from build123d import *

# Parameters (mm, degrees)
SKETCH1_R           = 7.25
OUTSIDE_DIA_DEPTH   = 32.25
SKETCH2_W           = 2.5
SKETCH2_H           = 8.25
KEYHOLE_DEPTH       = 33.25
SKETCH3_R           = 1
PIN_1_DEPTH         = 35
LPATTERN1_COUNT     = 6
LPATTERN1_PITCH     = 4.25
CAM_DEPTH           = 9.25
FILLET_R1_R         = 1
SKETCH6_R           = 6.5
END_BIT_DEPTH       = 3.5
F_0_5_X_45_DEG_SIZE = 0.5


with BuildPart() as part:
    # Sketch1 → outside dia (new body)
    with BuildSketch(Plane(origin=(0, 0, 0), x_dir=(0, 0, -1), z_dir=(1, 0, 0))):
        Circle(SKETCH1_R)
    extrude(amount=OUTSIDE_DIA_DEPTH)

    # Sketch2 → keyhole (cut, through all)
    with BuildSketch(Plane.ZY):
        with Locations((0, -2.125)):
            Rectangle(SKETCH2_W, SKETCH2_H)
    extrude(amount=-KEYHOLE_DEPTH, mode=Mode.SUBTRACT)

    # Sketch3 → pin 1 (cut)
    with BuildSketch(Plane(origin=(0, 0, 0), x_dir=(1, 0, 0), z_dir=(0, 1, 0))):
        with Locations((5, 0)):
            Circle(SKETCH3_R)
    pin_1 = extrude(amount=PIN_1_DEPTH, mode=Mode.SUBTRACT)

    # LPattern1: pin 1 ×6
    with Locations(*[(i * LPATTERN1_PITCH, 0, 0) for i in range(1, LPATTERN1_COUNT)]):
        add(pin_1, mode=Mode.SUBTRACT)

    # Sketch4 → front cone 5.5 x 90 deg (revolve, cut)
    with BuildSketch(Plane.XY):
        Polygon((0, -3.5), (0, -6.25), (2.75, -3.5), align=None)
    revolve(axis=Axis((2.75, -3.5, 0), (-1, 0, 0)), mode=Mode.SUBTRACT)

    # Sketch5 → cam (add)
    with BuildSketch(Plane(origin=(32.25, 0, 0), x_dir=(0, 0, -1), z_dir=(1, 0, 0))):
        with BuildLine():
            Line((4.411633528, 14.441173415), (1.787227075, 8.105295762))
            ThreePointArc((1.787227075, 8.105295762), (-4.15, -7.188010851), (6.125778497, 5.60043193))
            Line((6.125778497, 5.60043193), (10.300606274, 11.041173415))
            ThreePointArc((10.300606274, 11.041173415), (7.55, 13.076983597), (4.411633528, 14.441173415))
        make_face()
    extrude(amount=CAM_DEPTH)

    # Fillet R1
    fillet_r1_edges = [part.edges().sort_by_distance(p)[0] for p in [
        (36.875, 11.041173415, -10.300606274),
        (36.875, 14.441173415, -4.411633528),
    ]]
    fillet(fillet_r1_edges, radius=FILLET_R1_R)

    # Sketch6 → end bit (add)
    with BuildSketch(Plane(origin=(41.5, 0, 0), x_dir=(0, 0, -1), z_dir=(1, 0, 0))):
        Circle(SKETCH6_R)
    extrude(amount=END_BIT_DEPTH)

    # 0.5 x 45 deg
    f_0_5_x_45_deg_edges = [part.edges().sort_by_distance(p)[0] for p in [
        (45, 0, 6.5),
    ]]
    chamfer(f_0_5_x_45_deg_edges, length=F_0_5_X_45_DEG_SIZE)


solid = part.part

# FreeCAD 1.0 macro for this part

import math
import FreeCAD as App
import Part
import Sketcher
from FreeCAD import Vector
Q = App.Units.Quantity


def edges_at(feature, points):
    """Names of the edges that pass closest to the given points."""
    edges = feature.Shape.Edges
    near = lambda p: min(range(len(edges)), key=lambda i: edges[i].distToShape(Part.Vertex(*p))[0])
    return sorted({f"Edge{near(p) + 1}" for p in points})


def add_polygon(sketch, points):
    """Adds a closed chain of lines whose ends are joined by coincident constraints."""
    first, n = sketch.GeometryCount, len(points)
    for a, b in zip(points, points[1:] + points[:1]):
        sketch.addGeometry(Part.LineSegment(App.Vector(*a, 0), App.Vector(*b, 0)), False)
    for i in range(n):
        sketch.addConstraint(Sketcher.Constraint("Coincident", first + i, 2, first + (i + 1) % n, 1))

doc = App.newDocument("Part")
body = doc.addObject("PartDesign::Body", "Body")

sketch1 = doc.addObject("Sketcher::SketchObject", "Sketch")
body.addObject(sketch1)
sketch1.AttachmentSupport = (doc.YZ_Plane, [""])
sketch1.MapMode = "FlatFace"
sketch1.addGeometry(Part.Circle(Vector(0, 0, 0), Vector(0, 0, 1), 7.25), False)
sketch1.addConstraint(Sketcher.Constraint("Coincident", 0, 3, -1, 1))
sketch1.addConstraint(Sketcher.Constraint("Diameter", 0, Q("14.5 mm")))
pad1 = doc.addObject("PartDesign::Pad", "Pad")
body.addObject(pad1)
pad1.Profile = sketch1
pad1.Length = 32.25

sketch2 = doc.addObject("Sketcher::SketchObject", "Sketch001")
body.addObject(sketch2)
sketch2.AttachmentSupport = (doc.YZ_Plane, [""])
sketch2.MapMode = "FlatFace"
add_polygon(sketch2, [(2, -1.25), (-6.25, -1.25), (-6.25, 1.25), (2, 1.25)])
sketch2.addConstraint(Sketcher.Constraint("Horizontal", 0))
sketch2.addConstraint(Sketcher.Constraint("Vertical", 1))
sketch2.addConstraint(Sketcher.Constraint("Horizontal", 2))
sketch2.addConstraint(Sketcher.Constraint("Vertical", 3))
sketch2.addConstraint(Sketcher.Constraint("DistanceY", 1, 1, 1, 2, Q("2.5 mm")))
sketch2.addConstraint(Sketcher.Constraint("DistanceX", -1, 1, 2, 2, Q("2 mm")))
sketch2.addConstraint(Sketcher.Constraint("DistanceX", 0, 2, 0, 1, Q("8.25 mm")))
sketch2.addConstraint(Sketcher.Constraint("DistanceY", 0, 2, -1, 1, Q("1.25 mm")))
pocket1 = doc.addObject("PartDesign::Pocket", "Pocket")
body.addObject(pocket1)
pocket1.Profile = sketch2
pocket1.Type = "ThroughAll"
pocket1.Reversed = True

sketch3 = doc.addObject("Sketcher::SketchObject", "Sketch002")
body.addObject(sketch3)
sketch3.AttachmentSupport = (doc.XZ_Plane, [""])
sketch3.MapMode = "FlatFace"
sketch3.addGeometry(Part.Circle(Vector(5, 0, 0), Vector(0, 0, 1), 1), False)
sketch3.addConstraint(Sketcher.Constraint("PointOnObject", 0, 3, -1))
sketch3.addConstraint(Sketcher.Constraint("Diameter", 0, Q("2 mm")))
sketch3.addConstraint(Sketcher.Constraint("DistanceX", -1, 1, 0, 3, Q("5 mm")))
pocket2 = doc.addObject("PartDesign::Pocket", "Pocket001")
body.addObject(pocket2)
pocket2.Profile = sketch3
pocket2.Length = 35
doc.recompute()

linearpattern = doc.addObject("PartDesign::LinearPattern", "LinearPattern")
body.addObject(linearpattern)
linearpattern.Originals = [pocket2]
linearpattern.Direction = (doc.X_Axis, [""])
linearpattern.Mode = "offset"
linearpattern.Offset = 4.25
linearpattern.Occurrences = 6
body.Tip = linearpattern

sketch4 = doc.addObject("Sketcher::SketchObject", "Sketch003")
body.addObject(sketch4)
sketch4.AttachmentSupport = (doc.XY_Plane, [""])
sketch4.MapMode = "FlatFace"
add_polygon(sketch4, [(0, -3.5), (0, -6.25), (2.75, -3.5)])
sketch4.addGeometry(Part.LineSegment(Vector(2.75, -3.5, 0), Vector(0, -3.5, 0)), True)
sketch4.addConstraint(Sketcher.Constraint("Vertical", 0))
sketch4.addConstraint(Sketcher.Constraint("Horizontal", 2))
sketch4.addConstraint(Sketcher.Constraint("Horizontal", 3))
sketch4.addConstraint(Sketcher.Constraint("Coincident", 3, 1, 1, 2))
sketch4.addConstraint(Sketcher.Constraint("PointOnObject", 0, 2, -2))
sketch4.addConstraint(Sketcher.Constraint("PointOnObject", 3, 2, -2))
sketch4.addConstraint(Sketcher.Constraint("Equal", 3, 0))
sketch4.addConstraint(Sketcher.Constraint("DistanceX", 2, 2, 2, 1, Q("2.75 mm")))
sketch4.addConstraint(Sketcher.Constraint("DistanceY", 1, 2, -1, 1, Q("3.5 mm")))
groove = doc.addObject("PartDesign::Groove", "Groove")
body.addObject(groove)
groove.Profile = sketch4
groove.ReferenceAxis = (sketch4, ["Axis0"])
groove.Angle = 360

sketch5 = doc.addObject("Sketcher::SketchObject", "Sketch004")
body.addObject(sketch5)
sketch5.AttachmentSupport = (doc.YZ_Plane, [""])
sketch5.MapMode = "FlatFace"
sketch5.AttachmentOffset = App.Placement(Vector(0, 0, 32.25), App.Rotation())
sketch5.addGeometry(Part.LineSegment(Vector(14.441173, -4.411634, 0), Vector(8.105296, -1.787227, 0)), False)
sketch5.addGeometry(Part.ArcOfCircle(Part.Circle(Vector(0, 0, 0), Vector(0, 0, 1), 8.3), math.radians(-12.434804), math.radians(312.434804)), False)
sketch5.addGeometry(Part.LineSegment(Vector(5.600432, -6.125778, 0), Vector(11.041173, -10.300606, 0)), False)
sketch5.addGeometry(Part.ArcOfCircle(Part.Circle(Vector(0, 0, 0), Vector(0, 0, 1), 15.1), math.radians(-43.012614), math.radians(-16.987386)), False)
sketch5.addConstraint(Sketcher.Constraint("Coincident", 0, 2, 1, 1))
sketch5.addConstraint(Sketcher.Constraint("Coincident", 1, 2, 2, 1))
sketch5.addConstraint(Sketcher.Constraint("Coincident", 2, 2, 3, 1))
sketch5.addConstraint(Sketcher.Constraint("Coincident", 3, 2, 0, 1))
sketch5.addConstraint(Sketcher.Constraint("Coincident", 1, 3, -1, 1))
sketch5.addConstraint(Sketcher.Constraint("Coincident", 3, 3, -1, 1))
sketch5.addConstraint(Sketcher.Constraint("Equal", 0, 2))
sketch5.addConstraint(Sketcher.Constraint("Radius", 1, Q("8.3 mm")))
sketch5.addConstraint(Sketcher.Constraint("Radius", 3, Q("15.1 mm")))
sketch5.addConstraint(Sketcher.Constraint("Angle", 0, Q("157.5 deg")))
sketch5.addConstraint(Sketcher.Constraint("Angle", 2, Q("-37.5 deg")))
sketch5.addConstraint(Sketcher.Constraint("DistanceX", 2, 2, 3, 2, Q("3.4 mm")))
pad2 = doc.addObject("PartDesign::Pad", "Pad001")
body.addObject(pad2)
pad2.Profile = sketch5
pad2.Length = 9.25
doc.recompute()

fillet = doc.addObject("PartDesign::Fillet", "Fillet")
body.addObject(fillet)
fillet.Base = (pad2, edges_at(pad2, [(36.875, 11.041, -10.301), (36.875, 14.441, -4.412)]))
fillet.Radius = 1

sketch6 = doc.addObject("Sketcher::SketchObject", "Sketch005")
body.addObject(sketch6)
sketch6.AttachmentSupport = (doc.YZ_Plane, [""])
sketch6.MapMode = "FlatFace"
sketch6.AttachmentOffset = App.Placement(Vector(0, 0, 41.5), App.Rotation())
sketch6.addGeometry(Part.Circle(Vector(0, 0, 0), Vector(0, 0, 1), 6.5), False)
sketch6.addConstraint(Sketcher.Constraint("Coincident", 0, 3, -1, 1))
sketch6.addConstraint(Sketcher.Constraint("Diameter", 0, Q("13 mm")))
pad3 = doc.addObject("PartDesign::Pad", "Pad002")
body.addObject(pad3)
pad3.Profile = sketch6
pad3.Length = 3.5
doc.recompute()

chamfer = doc.addObject("PartDesign::Chamfer", "Chamfer")
body.addObject(chamfer)
chamfer.Base = (pad3, edges_at(pad3, [(45, 0, 6.5)]))
chamfer.Size = 0.5

doc.recompute()
